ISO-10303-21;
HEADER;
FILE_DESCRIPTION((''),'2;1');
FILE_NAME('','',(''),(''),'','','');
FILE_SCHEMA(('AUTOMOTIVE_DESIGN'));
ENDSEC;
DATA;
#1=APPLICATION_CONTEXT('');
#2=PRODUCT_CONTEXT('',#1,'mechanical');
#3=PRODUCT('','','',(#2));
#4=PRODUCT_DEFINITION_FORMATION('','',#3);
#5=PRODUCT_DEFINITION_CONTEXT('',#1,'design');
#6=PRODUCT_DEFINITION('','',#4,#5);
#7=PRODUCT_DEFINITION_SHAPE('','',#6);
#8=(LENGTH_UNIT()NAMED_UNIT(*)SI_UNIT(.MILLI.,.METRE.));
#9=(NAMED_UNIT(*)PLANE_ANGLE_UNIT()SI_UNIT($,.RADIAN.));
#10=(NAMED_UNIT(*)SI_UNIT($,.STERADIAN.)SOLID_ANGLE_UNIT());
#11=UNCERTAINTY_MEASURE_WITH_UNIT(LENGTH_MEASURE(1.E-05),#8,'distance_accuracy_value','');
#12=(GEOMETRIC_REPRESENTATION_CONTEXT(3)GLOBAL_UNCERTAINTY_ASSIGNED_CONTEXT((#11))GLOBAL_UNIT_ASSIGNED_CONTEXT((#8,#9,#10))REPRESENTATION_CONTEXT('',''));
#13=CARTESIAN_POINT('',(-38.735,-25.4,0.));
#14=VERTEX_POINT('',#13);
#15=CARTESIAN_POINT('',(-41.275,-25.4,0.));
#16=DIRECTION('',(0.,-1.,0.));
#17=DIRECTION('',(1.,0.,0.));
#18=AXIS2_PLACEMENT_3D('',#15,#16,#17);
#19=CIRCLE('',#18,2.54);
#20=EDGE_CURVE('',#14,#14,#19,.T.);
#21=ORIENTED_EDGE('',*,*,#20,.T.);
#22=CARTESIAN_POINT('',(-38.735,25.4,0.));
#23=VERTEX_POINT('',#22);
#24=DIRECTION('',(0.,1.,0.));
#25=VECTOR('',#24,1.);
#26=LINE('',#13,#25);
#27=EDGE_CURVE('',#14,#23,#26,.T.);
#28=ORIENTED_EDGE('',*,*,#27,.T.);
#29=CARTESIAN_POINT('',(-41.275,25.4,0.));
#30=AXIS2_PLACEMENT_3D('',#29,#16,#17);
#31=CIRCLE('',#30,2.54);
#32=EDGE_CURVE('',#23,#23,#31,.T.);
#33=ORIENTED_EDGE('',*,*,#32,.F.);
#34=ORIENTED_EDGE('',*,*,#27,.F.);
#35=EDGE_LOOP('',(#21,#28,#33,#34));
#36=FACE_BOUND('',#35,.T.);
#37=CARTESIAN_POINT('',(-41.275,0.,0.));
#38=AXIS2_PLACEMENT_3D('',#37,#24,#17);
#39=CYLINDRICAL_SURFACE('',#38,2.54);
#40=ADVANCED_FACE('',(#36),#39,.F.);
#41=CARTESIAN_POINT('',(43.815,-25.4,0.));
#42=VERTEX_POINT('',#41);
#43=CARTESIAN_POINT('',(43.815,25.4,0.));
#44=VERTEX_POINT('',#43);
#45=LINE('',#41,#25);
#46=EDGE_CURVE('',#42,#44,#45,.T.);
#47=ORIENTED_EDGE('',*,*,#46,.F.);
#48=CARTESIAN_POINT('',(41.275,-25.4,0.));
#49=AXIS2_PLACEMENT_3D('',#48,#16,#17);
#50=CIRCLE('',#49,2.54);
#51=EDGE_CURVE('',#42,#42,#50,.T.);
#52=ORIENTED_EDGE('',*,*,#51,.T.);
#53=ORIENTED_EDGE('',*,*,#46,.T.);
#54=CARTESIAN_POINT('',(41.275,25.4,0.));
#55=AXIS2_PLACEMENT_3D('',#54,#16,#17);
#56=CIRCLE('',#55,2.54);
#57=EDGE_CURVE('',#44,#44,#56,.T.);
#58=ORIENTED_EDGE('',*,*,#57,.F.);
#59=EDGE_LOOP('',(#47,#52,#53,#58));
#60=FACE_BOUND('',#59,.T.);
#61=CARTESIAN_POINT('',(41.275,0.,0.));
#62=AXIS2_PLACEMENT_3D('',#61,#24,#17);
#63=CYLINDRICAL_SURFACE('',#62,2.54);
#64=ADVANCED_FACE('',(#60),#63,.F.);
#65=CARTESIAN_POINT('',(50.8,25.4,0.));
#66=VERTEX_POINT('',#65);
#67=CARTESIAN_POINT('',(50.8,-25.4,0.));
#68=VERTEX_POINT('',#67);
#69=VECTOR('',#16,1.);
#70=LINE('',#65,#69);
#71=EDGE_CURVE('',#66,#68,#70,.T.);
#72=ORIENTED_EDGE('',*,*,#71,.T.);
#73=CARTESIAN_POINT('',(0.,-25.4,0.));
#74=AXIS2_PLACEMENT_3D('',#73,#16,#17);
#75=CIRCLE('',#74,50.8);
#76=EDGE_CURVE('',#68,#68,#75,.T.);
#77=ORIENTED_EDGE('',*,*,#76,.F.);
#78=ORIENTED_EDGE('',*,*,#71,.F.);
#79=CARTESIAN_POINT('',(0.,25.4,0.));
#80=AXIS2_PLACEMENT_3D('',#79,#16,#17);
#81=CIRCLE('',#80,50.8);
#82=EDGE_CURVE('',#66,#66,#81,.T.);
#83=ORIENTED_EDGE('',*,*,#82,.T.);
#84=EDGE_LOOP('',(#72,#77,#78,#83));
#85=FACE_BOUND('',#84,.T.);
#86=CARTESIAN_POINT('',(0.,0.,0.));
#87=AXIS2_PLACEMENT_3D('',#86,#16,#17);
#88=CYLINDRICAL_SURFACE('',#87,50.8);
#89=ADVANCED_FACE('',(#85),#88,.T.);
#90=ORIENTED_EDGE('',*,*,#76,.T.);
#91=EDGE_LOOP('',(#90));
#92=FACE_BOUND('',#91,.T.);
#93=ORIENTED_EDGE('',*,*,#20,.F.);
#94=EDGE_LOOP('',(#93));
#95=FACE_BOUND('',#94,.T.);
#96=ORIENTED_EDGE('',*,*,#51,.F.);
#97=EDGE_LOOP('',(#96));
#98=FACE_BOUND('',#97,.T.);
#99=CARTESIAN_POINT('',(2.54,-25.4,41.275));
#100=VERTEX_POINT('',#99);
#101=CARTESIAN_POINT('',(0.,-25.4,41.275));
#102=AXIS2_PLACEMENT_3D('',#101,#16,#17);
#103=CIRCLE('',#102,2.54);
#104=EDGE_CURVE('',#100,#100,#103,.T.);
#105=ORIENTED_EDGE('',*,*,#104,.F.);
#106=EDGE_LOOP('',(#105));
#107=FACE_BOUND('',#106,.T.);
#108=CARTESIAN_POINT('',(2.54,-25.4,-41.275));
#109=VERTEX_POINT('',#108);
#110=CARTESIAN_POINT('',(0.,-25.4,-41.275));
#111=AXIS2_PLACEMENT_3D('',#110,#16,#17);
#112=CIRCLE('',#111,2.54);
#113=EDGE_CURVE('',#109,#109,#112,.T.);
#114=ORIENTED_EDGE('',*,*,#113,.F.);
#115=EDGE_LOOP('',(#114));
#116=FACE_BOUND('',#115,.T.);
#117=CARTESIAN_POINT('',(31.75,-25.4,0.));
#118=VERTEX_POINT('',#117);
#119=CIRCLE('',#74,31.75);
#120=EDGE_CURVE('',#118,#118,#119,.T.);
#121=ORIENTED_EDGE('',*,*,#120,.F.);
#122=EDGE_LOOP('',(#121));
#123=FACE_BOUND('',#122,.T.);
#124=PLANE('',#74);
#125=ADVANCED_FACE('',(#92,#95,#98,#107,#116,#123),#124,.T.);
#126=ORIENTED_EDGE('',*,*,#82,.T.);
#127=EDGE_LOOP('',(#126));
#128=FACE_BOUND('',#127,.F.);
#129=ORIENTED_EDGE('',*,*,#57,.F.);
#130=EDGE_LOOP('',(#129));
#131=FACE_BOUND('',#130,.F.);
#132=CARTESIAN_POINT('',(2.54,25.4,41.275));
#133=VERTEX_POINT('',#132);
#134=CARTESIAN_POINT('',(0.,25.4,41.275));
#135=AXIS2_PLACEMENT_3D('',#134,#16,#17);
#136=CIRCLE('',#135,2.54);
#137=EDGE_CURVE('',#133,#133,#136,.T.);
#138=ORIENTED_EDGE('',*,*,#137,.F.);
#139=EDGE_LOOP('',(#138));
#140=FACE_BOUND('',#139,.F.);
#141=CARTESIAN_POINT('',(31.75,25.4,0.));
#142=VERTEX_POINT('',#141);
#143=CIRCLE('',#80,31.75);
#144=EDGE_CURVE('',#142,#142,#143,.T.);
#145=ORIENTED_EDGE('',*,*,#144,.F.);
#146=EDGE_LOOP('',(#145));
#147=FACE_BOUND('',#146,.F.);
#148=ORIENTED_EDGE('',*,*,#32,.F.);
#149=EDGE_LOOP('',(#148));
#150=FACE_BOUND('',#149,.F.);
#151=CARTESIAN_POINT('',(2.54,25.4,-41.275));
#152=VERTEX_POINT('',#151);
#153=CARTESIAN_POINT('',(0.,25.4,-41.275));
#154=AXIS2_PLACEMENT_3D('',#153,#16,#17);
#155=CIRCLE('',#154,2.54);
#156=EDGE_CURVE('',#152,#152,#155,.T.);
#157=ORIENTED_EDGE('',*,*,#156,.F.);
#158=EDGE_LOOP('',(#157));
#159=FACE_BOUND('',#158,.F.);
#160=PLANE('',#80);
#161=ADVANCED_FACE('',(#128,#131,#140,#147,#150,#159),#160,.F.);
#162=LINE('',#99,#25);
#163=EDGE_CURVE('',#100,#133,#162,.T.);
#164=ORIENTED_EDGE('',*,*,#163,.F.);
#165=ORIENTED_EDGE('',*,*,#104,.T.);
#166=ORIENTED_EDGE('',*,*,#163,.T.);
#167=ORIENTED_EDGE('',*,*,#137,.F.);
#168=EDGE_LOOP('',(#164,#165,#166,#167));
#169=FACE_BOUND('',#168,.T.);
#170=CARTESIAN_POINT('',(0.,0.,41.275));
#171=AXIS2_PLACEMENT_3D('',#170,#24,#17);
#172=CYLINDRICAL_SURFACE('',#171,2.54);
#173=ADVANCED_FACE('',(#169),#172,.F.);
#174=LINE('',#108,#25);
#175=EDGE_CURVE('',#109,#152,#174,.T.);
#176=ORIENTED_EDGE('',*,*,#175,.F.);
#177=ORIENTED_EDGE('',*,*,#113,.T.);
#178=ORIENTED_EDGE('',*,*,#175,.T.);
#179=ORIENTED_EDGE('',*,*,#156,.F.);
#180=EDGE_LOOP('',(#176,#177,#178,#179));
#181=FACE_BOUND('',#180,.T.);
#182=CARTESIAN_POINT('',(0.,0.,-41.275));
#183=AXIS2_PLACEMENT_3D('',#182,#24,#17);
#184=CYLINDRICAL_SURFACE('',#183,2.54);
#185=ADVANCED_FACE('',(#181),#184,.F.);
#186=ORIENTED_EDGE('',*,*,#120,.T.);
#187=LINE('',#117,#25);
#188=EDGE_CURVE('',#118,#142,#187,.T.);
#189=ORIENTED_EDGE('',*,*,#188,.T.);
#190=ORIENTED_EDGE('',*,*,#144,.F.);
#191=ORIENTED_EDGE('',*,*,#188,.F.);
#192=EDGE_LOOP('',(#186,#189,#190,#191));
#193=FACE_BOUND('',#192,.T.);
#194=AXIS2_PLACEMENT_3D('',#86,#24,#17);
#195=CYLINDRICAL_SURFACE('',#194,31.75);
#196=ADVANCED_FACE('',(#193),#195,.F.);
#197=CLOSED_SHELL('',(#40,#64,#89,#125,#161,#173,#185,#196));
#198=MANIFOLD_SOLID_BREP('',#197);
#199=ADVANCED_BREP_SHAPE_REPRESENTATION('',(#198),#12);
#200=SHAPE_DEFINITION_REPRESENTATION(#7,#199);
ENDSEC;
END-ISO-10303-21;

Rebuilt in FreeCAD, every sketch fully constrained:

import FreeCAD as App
import Part
import Sketcher
from FreeCAD import Vector
Q = App.Units.Quantity

doc = App.newDocument("Part")
params = doc.addObject("Spreadsheet::Sheet", "Params")
for row, (alias, value) in enumerate([
    ("sketch1_diameter", "4 in"),
    ("sketch1_diameter2", "0.2 in"),
    ("sketch1_diameter3", "2.5 in"),
    ("pad1_length", "2 in"),
], start=1):
    params.set(f"A{row}", alias)
    params.set(f"B{row}", "=" + value)
    params.setAlias(f"B{row}", alias)

body = doc.addObject("PartDesign::Body", "Body")

# Sketch on XZ plane
sketch1 = body.newObject("Sketcher::SketchObject", "Sketch")
sketch1.AttachmentSupport = (doc.getObject("XZ_Plane"), [""])
sketch1.MapMode = "FlatFace"
sketch1.addGeometry(Part.Circle(Vector(0, 0, 0), Vector(0, 0, 1), 50.8), False)
sketch1.addGeometry(Part.Circle(Vector(0, -41.3, 0), Vector(0, 0, 1), 2.5), False)
sketch1.addGeometry(Part.Circle(Vector(-41.3, 0, 0), Vector(0, 0, 1), 2.5), False)
sketch1.addGeometry(Part.Circle(Vector(0, 0, 0), Vector(0, 0, 1), 31.8), False)
sketch1.addGeometry(Part.Circle(Vector(41.3, 0, 0), Vector(0, 0, 1), 2.5), False)
sketch1.addGeometry(Part.Circle(Vector(0, 41.3, 0), Vector(0, 0, 1), 2.5), False)
sketch1.addConstraint(Sketcher.Constraint("Coincident", 0, 3, -1, 1))
sketch1.addConstraint(Sketcher.Constraint("Coincident", 3, 3, -1, 1))
sketch1.addConstraint(Sketcher.Constraint("Equal", 1, 2))
sketch1.addConstraint(Sketcher.Constraint("Equal", 2, 4))
sketch1.addConstraint(Sketcher.Constraint("Equal", 4, 5))
sketch1.addConstraint(Sketcher.Constraint("Symmetric", 2, 3, 4, 3, -1, 1))
sketch1.addConstraint(Sketcher.Constraint("Symmetric", 1, 3, 5, 3, -1, 1))
sketch1.addConstraint(Sketcher.Constraint("PointOnObject", 1, 3, -2))
sketch1.addConstraint(Sketcher.Constraint("PointOnObject", 2, 3, -1))
sketch1.addConstraint(Sketcher.Constraint("Diameter", 0, Q("4 in")))
sketch1.addConstraint(Sketcher.Constraint("Diameter", 1, Q("0.2 in")))
sketch1.addConstraint(Sketcher.Constraint("Diameter", 3, Q("2.5 in")))
sketch1.addConstraint(Sketcher.Constraint("DistanceX", 2, 3, 4, 3, Q("3.25 in")))
sketch1.addConstraint(Sketcher.Constraint("DistanceY", 1, 3, 5, 3, Q("3.25 in")))
sketch1.setExpression("Constraints[9]", "Params.sketch1_diameter")
sketch1.setExpression("Constraints[10]", "Params.sketch1_diameter2")
sketch1.setExpression("Constraints[11]", "Params.sketch1_diameter3")
pad1 = body.newObject("PartDesign::Pad", "Pad")
pad1.Profile = sketch1
pad1.setExpression("Length", "Params.pad1_length")
pad1.Midplane = True

doc.recompute()
